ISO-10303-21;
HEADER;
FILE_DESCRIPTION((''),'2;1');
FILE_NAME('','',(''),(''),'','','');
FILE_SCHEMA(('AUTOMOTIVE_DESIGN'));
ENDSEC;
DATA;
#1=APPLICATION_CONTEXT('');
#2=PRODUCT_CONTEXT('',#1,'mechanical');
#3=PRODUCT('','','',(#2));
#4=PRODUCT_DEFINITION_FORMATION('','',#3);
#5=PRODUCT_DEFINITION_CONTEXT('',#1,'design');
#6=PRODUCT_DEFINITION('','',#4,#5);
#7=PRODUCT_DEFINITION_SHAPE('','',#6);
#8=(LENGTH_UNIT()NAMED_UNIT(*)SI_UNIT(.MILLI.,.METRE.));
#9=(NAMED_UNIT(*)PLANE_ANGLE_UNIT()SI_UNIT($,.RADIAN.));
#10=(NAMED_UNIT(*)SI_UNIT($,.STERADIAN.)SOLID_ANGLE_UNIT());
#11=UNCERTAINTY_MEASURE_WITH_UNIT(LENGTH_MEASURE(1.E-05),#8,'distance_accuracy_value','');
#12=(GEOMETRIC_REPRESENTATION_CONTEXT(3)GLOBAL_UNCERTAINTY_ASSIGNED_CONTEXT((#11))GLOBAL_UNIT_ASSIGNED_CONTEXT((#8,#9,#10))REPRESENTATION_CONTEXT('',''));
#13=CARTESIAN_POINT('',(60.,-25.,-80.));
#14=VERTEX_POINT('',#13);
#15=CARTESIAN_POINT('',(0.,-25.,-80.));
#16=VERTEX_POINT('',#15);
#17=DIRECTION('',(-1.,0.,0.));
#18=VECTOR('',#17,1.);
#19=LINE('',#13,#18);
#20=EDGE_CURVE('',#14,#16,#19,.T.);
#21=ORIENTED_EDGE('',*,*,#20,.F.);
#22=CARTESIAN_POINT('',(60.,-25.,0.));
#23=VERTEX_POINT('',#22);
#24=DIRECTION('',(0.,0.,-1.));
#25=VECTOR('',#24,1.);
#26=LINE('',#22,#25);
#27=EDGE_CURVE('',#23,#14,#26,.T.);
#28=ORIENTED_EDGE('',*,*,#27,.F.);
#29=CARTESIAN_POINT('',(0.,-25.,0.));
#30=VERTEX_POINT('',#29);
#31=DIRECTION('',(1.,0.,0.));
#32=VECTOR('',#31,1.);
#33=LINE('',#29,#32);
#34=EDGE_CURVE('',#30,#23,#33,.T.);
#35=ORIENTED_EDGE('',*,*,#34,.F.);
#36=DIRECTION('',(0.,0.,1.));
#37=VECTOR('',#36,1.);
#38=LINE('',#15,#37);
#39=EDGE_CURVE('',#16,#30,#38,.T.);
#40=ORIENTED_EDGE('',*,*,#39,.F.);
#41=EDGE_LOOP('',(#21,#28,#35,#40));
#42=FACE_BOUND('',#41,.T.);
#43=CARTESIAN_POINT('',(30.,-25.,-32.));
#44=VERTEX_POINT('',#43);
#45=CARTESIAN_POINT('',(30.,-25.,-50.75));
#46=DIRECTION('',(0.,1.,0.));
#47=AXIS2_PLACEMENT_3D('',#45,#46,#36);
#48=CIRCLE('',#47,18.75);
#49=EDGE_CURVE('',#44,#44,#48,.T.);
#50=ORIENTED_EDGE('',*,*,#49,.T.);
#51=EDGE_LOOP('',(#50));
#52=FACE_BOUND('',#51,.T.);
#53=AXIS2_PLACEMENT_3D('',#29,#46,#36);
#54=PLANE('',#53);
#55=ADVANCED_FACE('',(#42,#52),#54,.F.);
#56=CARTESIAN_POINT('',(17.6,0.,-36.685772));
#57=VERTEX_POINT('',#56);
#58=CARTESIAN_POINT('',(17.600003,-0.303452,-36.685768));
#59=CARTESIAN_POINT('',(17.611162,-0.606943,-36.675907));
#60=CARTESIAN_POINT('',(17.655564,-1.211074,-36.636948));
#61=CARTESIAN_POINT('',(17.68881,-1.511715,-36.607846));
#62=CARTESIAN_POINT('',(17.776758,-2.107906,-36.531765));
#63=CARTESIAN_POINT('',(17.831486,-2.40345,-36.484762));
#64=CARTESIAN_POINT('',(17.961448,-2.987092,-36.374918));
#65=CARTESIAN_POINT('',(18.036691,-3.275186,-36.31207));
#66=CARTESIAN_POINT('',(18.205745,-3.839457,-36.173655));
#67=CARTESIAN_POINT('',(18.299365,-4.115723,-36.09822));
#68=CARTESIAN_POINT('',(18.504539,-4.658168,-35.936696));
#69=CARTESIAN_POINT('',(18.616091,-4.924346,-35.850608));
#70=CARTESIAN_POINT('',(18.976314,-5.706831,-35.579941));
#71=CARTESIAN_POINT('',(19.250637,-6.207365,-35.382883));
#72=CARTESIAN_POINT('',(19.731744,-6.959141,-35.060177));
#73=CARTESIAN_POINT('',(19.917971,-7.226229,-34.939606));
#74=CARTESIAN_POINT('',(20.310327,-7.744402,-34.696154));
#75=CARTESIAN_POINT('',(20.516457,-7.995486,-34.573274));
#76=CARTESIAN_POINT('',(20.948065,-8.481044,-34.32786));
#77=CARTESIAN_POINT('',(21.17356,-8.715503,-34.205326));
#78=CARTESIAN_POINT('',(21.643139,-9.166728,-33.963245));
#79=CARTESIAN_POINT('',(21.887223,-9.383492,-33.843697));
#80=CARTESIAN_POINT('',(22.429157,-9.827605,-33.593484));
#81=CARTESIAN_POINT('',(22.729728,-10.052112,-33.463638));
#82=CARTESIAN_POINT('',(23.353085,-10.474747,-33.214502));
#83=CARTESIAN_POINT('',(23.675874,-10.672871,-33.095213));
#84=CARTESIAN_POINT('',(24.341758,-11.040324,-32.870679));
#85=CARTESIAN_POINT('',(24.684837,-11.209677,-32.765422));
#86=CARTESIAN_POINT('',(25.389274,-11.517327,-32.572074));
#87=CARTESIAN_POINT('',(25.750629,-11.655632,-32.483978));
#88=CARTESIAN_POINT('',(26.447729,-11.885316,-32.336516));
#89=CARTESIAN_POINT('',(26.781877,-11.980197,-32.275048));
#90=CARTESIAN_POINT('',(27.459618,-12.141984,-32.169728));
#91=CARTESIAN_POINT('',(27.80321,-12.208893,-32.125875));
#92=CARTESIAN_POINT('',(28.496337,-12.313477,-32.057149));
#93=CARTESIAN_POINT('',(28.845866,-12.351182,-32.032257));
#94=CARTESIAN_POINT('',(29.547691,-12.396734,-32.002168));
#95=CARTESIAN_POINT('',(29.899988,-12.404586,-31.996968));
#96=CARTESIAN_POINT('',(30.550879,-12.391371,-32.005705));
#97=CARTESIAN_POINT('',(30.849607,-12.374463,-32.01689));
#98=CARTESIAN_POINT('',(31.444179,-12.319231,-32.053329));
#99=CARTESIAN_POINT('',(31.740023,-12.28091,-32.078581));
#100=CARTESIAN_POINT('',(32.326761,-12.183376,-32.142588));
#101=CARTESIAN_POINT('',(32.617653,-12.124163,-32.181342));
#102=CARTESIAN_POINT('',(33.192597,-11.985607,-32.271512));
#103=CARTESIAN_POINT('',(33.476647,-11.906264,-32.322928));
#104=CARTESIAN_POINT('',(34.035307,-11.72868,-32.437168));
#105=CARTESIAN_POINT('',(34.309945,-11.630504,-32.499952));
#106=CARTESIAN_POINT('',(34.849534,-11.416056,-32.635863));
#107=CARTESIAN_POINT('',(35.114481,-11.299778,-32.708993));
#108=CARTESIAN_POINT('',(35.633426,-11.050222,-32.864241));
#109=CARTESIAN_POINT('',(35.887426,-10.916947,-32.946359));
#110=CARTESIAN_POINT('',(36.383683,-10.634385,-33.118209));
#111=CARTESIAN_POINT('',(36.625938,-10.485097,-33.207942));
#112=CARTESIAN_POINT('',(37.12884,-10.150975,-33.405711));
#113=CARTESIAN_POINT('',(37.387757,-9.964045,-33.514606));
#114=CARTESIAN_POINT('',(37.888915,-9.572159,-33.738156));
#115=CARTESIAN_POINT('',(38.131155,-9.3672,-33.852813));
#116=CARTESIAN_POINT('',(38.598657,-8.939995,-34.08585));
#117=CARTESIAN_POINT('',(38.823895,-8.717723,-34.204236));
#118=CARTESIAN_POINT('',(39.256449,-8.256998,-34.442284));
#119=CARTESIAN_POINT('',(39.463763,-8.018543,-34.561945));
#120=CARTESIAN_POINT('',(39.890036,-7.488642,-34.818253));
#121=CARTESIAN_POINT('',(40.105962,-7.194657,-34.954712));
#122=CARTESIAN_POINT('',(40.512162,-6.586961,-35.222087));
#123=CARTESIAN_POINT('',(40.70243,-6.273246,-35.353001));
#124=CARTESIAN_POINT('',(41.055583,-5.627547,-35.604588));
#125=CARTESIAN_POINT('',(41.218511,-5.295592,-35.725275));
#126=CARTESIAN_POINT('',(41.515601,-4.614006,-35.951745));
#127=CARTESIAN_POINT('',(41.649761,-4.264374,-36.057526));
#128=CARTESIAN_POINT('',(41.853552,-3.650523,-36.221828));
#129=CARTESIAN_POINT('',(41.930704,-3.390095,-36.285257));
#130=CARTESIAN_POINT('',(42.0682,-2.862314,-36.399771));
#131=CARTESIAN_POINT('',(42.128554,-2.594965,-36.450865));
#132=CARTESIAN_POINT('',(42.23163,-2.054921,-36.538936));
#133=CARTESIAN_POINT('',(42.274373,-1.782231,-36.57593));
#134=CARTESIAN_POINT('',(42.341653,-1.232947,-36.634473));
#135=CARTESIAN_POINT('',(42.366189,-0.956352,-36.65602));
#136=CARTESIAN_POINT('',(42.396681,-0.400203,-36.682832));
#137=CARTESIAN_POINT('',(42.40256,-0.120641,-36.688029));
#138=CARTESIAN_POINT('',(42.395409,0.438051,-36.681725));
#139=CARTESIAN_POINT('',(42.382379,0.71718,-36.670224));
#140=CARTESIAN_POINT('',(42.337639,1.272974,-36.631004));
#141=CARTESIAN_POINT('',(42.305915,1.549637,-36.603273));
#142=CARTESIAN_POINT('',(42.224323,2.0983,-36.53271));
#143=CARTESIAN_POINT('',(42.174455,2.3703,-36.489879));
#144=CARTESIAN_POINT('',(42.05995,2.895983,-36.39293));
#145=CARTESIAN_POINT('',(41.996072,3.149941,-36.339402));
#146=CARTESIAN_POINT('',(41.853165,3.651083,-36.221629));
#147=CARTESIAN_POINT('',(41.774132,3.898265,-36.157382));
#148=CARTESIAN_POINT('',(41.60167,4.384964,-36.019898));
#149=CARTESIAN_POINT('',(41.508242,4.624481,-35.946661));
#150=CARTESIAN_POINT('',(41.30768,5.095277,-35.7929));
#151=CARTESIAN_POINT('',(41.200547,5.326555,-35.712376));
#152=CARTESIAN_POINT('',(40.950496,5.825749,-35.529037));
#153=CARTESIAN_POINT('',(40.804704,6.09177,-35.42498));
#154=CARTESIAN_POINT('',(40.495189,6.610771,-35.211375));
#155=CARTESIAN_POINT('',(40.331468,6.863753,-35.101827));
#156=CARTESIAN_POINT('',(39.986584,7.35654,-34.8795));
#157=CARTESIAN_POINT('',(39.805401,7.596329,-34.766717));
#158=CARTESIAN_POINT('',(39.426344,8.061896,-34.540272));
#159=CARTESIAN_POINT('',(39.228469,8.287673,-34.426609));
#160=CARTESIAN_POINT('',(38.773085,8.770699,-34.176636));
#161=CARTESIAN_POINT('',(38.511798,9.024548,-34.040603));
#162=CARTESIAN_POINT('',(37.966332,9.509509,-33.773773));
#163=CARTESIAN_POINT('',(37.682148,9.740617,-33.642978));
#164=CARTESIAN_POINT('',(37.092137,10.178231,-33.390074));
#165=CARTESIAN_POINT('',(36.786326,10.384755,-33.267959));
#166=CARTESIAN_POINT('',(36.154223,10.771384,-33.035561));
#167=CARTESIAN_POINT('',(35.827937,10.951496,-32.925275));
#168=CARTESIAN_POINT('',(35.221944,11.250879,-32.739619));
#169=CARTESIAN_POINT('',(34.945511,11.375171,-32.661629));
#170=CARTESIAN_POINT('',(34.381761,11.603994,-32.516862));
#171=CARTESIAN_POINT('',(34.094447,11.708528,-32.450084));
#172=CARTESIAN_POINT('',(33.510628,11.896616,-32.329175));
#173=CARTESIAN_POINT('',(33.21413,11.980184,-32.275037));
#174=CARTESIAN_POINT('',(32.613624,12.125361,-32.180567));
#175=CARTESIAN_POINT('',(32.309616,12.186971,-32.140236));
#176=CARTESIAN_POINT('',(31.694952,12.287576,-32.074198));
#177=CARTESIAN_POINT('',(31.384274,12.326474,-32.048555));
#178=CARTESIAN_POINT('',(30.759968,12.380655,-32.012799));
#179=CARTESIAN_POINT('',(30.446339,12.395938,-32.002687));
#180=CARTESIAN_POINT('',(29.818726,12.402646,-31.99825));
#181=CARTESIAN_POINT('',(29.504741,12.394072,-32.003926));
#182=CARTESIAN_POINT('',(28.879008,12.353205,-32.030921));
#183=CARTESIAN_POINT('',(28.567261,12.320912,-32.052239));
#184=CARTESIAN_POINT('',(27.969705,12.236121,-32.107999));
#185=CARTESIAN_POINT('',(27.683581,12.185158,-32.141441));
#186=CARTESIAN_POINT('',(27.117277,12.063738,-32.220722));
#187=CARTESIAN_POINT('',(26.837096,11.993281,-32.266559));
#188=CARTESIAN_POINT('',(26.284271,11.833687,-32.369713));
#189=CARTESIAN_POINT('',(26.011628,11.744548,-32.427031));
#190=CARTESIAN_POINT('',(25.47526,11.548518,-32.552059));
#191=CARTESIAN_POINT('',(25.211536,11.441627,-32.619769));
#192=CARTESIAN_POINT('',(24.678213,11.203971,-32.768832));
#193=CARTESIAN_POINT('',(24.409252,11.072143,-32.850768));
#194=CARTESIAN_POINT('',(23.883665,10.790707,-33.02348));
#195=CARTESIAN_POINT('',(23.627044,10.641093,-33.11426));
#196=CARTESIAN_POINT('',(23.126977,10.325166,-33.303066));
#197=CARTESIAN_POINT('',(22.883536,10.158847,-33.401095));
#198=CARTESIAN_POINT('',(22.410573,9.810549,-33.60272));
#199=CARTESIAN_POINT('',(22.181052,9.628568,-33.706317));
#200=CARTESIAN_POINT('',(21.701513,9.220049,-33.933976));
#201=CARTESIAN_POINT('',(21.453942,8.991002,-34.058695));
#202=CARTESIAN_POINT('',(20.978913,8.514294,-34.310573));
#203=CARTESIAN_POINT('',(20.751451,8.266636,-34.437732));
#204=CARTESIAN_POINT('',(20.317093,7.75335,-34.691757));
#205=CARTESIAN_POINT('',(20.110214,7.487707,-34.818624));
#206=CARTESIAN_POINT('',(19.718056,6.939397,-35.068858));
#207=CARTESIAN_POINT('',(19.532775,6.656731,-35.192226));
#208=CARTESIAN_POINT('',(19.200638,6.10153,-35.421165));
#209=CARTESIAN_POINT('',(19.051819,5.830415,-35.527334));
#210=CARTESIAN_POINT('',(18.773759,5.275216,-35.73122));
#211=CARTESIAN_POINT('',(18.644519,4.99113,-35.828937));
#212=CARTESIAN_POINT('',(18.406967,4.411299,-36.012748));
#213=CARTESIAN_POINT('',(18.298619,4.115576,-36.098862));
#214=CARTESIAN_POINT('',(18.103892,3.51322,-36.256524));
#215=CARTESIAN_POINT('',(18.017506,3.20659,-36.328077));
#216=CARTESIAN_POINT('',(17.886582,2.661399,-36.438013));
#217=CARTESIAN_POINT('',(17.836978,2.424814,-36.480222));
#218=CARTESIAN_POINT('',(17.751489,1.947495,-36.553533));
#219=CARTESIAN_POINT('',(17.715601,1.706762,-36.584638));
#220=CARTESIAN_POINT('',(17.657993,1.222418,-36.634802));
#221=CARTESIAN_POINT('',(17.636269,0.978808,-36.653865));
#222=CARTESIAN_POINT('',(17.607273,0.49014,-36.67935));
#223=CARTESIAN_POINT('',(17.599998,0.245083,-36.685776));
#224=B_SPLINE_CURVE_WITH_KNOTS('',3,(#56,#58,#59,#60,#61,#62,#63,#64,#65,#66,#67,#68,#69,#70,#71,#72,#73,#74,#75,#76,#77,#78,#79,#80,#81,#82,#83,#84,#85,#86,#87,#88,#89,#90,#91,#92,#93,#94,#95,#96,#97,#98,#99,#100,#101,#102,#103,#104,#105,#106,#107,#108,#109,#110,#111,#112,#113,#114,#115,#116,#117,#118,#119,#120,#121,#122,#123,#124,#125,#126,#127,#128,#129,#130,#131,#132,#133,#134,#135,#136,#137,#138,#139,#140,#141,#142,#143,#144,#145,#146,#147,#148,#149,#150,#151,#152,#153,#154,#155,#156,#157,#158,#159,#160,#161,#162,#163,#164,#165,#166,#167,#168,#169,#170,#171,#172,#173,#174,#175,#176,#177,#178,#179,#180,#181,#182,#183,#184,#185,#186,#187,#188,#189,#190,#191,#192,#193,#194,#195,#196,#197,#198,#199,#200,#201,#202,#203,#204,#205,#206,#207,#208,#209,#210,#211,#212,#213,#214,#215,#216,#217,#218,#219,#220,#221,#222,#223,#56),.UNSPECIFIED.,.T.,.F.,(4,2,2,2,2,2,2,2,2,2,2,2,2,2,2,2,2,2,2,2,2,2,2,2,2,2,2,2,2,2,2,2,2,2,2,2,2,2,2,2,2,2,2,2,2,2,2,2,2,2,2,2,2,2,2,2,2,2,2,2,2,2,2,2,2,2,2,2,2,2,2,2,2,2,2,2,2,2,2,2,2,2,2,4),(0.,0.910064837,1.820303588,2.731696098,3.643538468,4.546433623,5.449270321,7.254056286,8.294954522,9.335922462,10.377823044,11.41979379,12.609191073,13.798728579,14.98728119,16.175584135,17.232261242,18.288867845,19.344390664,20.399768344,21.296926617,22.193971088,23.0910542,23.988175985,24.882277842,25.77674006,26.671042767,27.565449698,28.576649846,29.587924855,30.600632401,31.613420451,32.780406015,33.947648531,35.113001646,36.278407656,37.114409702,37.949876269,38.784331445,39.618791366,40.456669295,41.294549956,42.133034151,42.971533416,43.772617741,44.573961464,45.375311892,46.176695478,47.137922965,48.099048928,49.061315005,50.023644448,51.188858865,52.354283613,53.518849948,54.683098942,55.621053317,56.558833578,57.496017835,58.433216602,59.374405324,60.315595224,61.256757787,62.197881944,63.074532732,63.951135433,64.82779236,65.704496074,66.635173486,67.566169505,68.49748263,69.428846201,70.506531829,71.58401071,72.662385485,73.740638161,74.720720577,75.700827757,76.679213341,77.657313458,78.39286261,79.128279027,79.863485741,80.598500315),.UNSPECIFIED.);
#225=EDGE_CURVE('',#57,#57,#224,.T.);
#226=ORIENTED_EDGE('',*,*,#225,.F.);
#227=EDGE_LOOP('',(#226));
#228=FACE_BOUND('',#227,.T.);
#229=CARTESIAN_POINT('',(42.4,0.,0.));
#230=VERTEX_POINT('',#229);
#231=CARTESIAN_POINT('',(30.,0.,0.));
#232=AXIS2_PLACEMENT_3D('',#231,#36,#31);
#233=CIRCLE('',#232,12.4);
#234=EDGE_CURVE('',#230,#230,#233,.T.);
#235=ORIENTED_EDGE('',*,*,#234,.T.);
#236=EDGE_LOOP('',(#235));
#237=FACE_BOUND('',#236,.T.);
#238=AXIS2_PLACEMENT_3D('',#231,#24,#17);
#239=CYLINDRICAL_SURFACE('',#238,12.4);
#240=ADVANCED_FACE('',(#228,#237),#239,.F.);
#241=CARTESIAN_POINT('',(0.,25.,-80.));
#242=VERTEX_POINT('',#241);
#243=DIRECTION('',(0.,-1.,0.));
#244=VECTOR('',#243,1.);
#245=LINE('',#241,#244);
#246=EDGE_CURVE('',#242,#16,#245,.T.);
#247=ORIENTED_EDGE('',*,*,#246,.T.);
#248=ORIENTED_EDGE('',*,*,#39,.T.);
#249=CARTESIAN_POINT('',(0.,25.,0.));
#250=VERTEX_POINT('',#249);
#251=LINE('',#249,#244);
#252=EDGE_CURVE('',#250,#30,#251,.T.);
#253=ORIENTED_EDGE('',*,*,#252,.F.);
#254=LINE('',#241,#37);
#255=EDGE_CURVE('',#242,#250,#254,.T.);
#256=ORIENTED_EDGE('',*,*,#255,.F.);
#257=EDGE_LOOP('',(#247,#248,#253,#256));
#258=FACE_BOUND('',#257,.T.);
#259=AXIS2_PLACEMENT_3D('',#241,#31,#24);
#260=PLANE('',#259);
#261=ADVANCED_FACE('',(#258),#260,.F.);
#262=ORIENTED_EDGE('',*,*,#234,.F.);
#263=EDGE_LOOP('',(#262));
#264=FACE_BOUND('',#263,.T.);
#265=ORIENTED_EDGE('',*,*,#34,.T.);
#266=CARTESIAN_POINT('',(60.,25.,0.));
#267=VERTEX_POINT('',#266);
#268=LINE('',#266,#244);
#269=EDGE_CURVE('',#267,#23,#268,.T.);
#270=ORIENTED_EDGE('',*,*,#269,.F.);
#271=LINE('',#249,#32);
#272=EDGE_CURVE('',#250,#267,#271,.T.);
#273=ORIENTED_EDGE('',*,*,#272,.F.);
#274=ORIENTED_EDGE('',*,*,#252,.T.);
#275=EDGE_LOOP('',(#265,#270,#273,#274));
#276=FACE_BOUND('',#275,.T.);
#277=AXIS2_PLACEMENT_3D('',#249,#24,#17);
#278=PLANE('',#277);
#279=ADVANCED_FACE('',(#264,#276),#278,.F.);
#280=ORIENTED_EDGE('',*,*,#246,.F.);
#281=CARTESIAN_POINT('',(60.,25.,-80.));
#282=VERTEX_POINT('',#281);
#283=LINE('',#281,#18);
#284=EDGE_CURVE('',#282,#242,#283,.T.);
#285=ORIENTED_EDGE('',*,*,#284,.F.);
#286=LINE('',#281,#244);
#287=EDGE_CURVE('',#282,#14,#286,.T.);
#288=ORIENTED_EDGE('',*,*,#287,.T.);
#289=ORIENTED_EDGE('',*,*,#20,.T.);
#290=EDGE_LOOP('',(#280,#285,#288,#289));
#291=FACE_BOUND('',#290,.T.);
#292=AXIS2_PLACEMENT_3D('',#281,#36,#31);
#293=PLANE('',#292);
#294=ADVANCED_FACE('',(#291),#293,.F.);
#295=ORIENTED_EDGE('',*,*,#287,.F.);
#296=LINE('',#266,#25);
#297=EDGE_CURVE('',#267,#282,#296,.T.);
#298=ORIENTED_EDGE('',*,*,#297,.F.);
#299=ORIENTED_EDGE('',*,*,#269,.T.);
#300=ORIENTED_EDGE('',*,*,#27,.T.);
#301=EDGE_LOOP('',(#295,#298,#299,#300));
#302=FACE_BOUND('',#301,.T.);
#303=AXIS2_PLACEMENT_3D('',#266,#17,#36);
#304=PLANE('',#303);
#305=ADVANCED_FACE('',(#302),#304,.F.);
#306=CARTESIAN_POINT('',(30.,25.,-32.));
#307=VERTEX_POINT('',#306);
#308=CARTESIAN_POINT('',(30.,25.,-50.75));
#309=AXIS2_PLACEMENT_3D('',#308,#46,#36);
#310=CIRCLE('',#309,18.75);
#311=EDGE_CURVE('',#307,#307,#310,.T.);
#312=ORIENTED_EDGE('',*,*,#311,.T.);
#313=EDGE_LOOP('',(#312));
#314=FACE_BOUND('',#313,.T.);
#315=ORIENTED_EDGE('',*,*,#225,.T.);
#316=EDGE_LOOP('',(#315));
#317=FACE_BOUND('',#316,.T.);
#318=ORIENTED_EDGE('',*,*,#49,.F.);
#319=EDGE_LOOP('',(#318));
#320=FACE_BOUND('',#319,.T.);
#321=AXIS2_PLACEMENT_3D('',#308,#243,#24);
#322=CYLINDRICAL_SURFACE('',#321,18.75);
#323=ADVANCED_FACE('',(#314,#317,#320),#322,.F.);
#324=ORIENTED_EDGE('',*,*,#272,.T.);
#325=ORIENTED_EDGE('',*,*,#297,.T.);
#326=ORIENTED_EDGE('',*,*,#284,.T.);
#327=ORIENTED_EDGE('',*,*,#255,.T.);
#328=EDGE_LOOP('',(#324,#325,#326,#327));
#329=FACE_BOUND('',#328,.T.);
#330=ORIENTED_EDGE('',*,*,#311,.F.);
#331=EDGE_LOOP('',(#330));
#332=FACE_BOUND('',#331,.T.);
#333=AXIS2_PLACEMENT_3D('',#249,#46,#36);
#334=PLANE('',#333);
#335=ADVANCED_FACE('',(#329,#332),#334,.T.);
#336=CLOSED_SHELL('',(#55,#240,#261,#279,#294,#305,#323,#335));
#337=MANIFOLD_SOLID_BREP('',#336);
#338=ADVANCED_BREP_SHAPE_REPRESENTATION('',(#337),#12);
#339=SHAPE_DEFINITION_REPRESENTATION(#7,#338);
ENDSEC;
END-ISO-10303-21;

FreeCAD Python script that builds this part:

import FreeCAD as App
import Part
import Sketcher

V = App.Vector
Q = App.Units.Quantity


def add_polygon(sketch, points):
    """Adds a closed chain of lines whose ends are joined by coincident constraints."""
    first, n = sketch.GeometryCount, len(points)
    for a, b in zip(points, points[1:] + points[:1]):
        sketch.addGeometry(Part.LineSegment(App.Vector(*a, 0), App.Vector(*b, 0)), False)
    for i in range(n):
        sketch.addConstraint(Sketcher.Constraint("Coincident", first + i, 2, first + (i + 1) % n, 1))

doc = App.newDocument("Part")
body = doc.addObject("PartDesign::Body", "Body")

# Sketch on XZ plane
sketch1 = body.newObject("Sketcher::SketchObject", "Sketch")
sketch1.AttachmentSupport = (doc.getObject("XZ_Plane"), [""])
sketch1.MapMode = "FlatFace"
add_polygon(sketch1, [(0, -80), (0, 0), (60, 0), (60, -80)])  # lines 0-3
sketch1.addGeometry(Part.Circle(V(30, -51, 0), V(0, 0, 1), 19), False)  # 4
sketch1.addConstraint(Sketcher.Constraint("Vertical", 0))
sketch1.addConstraint(Sketcher.Constraint("Horizontal", 1))
sketch1.addConstraint(Sketcher.Constraint("Vertical", 2))
sketch1.addConstraint(Sketcher.Constraint("Horizontal", 3))
sketch1.addConstraint(Sketcher.Constraint("Coincident", 0, 2, -1, 1))
sketch1.addConstraint(Sketcher.Constraint("Diameter", 4, Q("37.5 mm")))
sketch1.addConstraint(Sketcher.Constraint("DistanceX", 1, 1, 1, 2, Q("60 mm")))
sketch1.addConstraint(Sketcher.Constraint("DistanceY", 0, 1, 0, 2, Q("80 mm")))
sketch1.addConstraint(Sketcher.Constraint("DistanceX", -1, 1, 4, 3, Q("30 mm")))
sketch1.addConstraint(Sketcher.Constraint("DistanceY", 4, 3, -1, 1, Q("50.75 mm")))
pad1 = body.newObject("PartDesign::Pad", "Pad")
pad1.Profile = sketch1
pad1.Length = 50
pad1.Midplane = True

# Sketch on XY plane
sketch2 = body.newObject("Sketcher::SketchObject", "Sketch001")
sketch2.AttachmentSupport = (doc.getObject("XY_Plane"), [""])
sketch2.MapMode = "FlatFace"
sketch2.AttachmentOffset = App.Placement(V(0, 0, -50.75), App.Rotation())
sketch2.addGeometry(Part.Circle(V(30, 0, 0), V(0, 0, 1), 12), False)
sketch2.addConstraint(Sketcher.Constraint("PointOnObject", 0, 3, -1))
sketch2.addConstraint(Sketcher.Constraint("Diameter", 0, Q("24.8 mm")))
sketch2.addConstraint(Sketcher.Constraint("DistanceX", -1, 1, 0, 3, Q("30 mm")))
pocket1 = body.newObject("PartDesign::Pocket", "Pocket")
pocket1.Profile = sketch2
pocket1.Type = "ThroughAll"
pocket1.Reversed = True

doc.recompute()
